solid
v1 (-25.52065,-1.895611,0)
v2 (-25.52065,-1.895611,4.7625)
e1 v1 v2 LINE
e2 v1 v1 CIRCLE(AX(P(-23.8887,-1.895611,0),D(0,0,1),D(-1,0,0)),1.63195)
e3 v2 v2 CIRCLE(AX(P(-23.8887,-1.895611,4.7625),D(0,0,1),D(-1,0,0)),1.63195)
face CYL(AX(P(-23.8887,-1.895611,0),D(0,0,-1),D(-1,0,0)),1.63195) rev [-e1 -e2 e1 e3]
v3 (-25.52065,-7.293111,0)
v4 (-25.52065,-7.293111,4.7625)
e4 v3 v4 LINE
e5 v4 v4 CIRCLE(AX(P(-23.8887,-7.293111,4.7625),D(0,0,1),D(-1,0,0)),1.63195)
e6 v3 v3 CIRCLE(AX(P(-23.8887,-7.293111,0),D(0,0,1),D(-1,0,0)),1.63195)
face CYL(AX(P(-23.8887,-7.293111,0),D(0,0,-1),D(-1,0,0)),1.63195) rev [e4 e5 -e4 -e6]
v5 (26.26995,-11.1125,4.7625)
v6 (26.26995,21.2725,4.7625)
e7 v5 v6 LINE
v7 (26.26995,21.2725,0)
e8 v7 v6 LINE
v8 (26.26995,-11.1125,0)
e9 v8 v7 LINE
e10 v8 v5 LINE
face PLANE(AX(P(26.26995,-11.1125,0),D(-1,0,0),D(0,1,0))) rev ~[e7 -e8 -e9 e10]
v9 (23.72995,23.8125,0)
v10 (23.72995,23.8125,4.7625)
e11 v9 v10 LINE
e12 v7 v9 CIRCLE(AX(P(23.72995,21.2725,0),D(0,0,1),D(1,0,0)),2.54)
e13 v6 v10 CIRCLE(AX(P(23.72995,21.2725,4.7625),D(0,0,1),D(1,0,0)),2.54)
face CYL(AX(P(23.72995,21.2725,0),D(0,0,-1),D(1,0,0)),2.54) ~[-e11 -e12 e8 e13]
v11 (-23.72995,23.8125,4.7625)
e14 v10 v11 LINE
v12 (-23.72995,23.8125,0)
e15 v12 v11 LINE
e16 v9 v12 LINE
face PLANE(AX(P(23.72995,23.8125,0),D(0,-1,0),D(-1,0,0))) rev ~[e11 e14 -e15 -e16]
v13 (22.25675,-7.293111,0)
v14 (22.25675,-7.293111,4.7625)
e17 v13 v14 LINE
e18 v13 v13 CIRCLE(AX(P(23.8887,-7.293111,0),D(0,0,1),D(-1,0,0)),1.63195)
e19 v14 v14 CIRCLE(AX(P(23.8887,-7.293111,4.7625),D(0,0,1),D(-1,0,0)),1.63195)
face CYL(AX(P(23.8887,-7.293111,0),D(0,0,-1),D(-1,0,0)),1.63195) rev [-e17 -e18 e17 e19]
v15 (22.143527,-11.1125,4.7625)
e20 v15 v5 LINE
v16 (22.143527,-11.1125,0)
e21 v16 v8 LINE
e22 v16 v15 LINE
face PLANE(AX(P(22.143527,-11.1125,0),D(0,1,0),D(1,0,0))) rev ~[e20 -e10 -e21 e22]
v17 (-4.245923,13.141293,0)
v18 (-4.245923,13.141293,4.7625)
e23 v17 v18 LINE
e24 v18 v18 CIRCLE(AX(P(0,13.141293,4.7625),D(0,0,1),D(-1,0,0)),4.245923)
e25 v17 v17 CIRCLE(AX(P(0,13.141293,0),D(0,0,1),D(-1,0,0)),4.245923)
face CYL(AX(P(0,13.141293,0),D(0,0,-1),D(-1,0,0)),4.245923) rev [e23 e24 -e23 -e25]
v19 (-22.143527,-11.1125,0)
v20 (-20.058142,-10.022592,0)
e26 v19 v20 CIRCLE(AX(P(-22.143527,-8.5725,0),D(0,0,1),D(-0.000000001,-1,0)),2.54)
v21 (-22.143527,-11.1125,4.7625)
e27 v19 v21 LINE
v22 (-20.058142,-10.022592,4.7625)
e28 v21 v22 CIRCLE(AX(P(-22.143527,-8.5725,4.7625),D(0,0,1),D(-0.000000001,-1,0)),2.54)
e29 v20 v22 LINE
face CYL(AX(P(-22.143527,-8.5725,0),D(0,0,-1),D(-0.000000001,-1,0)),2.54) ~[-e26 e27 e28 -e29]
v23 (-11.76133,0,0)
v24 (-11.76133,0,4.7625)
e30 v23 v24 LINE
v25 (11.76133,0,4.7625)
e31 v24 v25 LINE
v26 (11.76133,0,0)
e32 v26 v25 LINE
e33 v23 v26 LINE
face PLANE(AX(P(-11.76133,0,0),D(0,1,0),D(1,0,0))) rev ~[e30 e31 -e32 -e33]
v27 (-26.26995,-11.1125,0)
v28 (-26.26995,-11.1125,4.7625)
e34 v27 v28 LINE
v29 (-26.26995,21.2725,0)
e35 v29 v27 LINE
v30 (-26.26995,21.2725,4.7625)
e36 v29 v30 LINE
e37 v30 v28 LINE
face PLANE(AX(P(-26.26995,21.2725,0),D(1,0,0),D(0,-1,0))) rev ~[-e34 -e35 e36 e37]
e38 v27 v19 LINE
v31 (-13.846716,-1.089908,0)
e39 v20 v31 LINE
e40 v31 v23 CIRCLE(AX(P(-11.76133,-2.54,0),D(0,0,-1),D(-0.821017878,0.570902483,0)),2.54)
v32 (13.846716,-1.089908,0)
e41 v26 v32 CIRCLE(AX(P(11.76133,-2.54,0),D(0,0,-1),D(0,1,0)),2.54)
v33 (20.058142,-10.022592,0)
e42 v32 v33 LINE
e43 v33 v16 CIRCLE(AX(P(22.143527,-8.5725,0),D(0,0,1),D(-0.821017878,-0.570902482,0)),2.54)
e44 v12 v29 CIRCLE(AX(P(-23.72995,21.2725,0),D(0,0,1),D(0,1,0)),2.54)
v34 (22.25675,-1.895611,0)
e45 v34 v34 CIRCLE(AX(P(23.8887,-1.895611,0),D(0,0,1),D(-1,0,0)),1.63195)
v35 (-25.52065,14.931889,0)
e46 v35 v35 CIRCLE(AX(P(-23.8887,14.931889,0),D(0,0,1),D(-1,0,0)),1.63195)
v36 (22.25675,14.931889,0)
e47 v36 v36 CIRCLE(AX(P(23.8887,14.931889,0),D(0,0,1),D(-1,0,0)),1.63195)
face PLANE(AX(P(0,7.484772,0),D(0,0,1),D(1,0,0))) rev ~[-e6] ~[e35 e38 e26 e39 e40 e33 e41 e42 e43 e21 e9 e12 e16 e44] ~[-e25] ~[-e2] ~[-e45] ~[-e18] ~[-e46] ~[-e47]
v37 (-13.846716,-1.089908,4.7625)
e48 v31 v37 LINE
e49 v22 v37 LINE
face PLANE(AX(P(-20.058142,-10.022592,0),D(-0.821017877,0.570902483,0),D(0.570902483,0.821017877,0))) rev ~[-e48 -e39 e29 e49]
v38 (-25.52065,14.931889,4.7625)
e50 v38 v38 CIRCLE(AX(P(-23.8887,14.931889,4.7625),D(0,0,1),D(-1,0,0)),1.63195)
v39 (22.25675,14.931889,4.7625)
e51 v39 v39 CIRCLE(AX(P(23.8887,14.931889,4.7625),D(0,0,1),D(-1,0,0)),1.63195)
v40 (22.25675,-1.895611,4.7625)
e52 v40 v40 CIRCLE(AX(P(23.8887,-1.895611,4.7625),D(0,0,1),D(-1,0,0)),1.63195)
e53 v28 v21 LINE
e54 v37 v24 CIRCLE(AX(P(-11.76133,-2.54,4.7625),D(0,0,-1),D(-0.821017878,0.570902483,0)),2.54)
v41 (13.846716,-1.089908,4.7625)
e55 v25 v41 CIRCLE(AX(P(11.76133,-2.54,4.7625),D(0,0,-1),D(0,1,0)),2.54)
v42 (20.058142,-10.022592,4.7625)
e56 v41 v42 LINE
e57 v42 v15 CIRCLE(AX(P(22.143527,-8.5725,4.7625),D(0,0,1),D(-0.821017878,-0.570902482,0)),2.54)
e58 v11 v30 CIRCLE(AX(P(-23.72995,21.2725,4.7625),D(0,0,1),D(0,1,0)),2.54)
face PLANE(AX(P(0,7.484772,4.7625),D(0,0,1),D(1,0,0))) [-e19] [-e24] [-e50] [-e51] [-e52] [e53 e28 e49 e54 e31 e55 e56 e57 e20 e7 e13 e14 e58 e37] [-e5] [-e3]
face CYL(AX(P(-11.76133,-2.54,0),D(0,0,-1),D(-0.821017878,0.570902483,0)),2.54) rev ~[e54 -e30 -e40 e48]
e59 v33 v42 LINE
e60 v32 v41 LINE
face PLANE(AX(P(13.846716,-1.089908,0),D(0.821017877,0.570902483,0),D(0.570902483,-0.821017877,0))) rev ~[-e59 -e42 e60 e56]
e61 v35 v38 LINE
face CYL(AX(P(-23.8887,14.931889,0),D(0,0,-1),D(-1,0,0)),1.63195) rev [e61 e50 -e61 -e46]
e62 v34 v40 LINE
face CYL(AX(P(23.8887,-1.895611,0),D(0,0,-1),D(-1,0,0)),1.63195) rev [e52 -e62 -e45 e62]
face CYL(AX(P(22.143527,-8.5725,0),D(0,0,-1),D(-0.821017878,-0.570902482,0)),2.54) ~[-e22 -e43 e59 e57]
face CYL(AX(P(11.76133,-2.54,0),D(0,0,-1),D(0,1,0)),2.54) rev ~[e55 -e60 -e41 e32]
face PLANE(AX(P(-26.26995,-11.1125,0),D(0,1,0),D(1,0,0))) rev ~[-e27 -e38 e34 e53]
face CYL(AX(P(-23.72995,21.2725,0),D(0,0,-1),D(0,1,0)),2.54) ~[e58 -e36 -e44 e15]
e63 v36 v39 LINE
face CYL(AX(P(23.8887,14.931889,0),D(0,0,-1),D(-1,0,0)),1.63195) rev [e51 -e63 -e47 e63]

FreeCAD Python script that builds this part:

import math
import FreeCAD as App
import Part
import Sketcher
from FreeCAD import Vector
Q = App.Units.Quantity

doc = App.newDocument("Part")
body = doc.addObject("PartDesign::Body", "Body")

# Sketch on XY plane
sketch1 = body.newObject("Sketcher::SketchObject", "Sketch")
sketch1.AttachmentSupport = (doc.getObject("XY_Plane"), [""])
sketch1.MapMode = "FlatFace"
sketch1.addGeometry(Part.LineSegment(Vector(-26.26995, -11.1125, 0), Vector(-22.143527, -11.1125, 0)), False)
sketch1.addGeometry(Part.ArcOfCircle(Part.Circle(Vector(-22.143527, -8.5725, 0), Vector(0, 0, 1), 2.54), math.radians(-90), math.radians(-34.813183)), False)
sketch1.addGeometry(Part.LineSegment(Vector(-20.058142, -10.022592, 0), Vector(-13.846716, -1.089908, 0)), False)
sketch1.addGeometry(Part.ArcOfCircle(Part.Circle(Vector(-11.76133, -2.54, 0), Vector(0, 0, 1), 2.54), math.radians(90), math.radians(145.186817)), False)
sketch1.addGeometry(Part.LineSegment(Vector(-11.76133, 0, 0), Vector(11.76133, 0, 0)), False)
sketch1.addGeometry(Part.ArcOfCircle(Part.Circle(Vector(11.76133, -2.54, 0), Vector(0, 0, 1), 2.54), math.radians(34.813183), math.radians(90)), False)
sketch1.addGeometry(Part.LineSegment(Vector(13.846716, -1.089908, 0), Vector(20.058142, -10.022592, 0)), False)
sketch1.addGeometry(Part.ArcOfCircle(Part.Circle(Vector(22.143527, -8.5725, 0), Vector(0, 0, 1), 2.54), math.radians(-145.186817), math.radians(-90)), False)
sketch1.addGeometry(Part.LineSegment(Vector(22.143527, -11.1125, 0), Vector(26.26995, -11.1125, 0)), False)
sketch1.addGeometry(Part.LineSegment(Vector(26.26995, -11.1125, 0), Vector(26.26995, 21.2725, 0)), False)
sketch1.addGeometry(Part.ArcOfCircle(Part.Circle(Vector(23.72995, 21.2725, 0), Vector(0, 0, 1), 2.54), math.radians(0), math.radians(90)), False)
sketch1.addGeometry(Part.LineSegment(Vector(23.72995, 23.8125, 0), Vector(-23.72995, 23.8125, 0)), False)
sketch1.addGeometry(Part.ArcOfCircle(Part.Circle(Vector(-23.72995, 21.2725, 0), Vector(0, 0, 1), 2.54), math.radians(90), math.radians(180)), False)
sketch1.addGeometry(Part.LineSegment(Vector(-26.26995, 21.2725, 0), Vector(-26.26995, -11.1125, 0)), False)
sketch1.addGeometry(Part.Circle(Vector(-23.8887, -7.293111, 0), Vector(0, 0, 1), 1.63195), False)
sketch1.addGeometry(Part.Circle(Vector(-23.8887, -1.895611, 0), Vector(0, 0, 1), 1.63195), False)
sketch1.addGeometry(Part.Circle(Vector(23.8887, -7.293111, 0), Vector(0, 0, 1), 1.63195), False)
sketch1.addGeometry(Part.Circle(Vector(23.8887, -1.895611, 0), Vector(0, 0, 1), 1.63195), False)
sketch1.addGeometry(Part.Circle(Vector(-23.8887, 14.931889, 0), Vector(0, 0, 1), 1.63195), False)
sketch1.addGeometry(Part.Circle(Vector(0, 13.141293, 0), Vector(0, 0, 1), 4.245923), False)
sketch1.addGeometry(Part.Circle(Vector(23.8887, 14.931889, 0), Vector(0, 0, 1), 1.63195), False)
sketch1.addConstraint(Sketcher.Constraint("Tangent", 0, 2, 1, 1))
sketch1.addConstraint(Sketcher.Constraint("Tangent", 1, 2, 2, 1))
sketch1.addConstraint(Sketcher.Constraint("Tangent", 2, 2, 3, 2))
sketch1.addConstraint(Sketcher.Constraint("Tangent", 3, 1, 4, 1))
sketch1.addConstraint(Sketcher.Constraint("Tangent", 4, 2, 5, 2))
sketch1.addConstraint(Sketcher.Constraint("Tangent", 5, 1, 6, 1))
sketch1.addConstraint(Sketcher.Constraint("Tangent", 6, 2, 7, 1))
sketch1.addConstraint(Sketcher.Constraint("Tangent", 7, 2, 8, 1))
sketch1.addConstraint(Sketcher.Constraint("Coincident", 8, 2, 9, 1))
sketch1.addConstraint(Sketcher.Constraint("Tangent", 9, 2, 10, 1))
sketch1.addConstraint(Sketcher.Constraint("Tangent", 10, 2, 11, 1))
sketch1.addConstraint(Sketcher.Constraint("Tangent", 11, 2, 12, 1))
sketch1.addConstraint(Sketcher.Constraint("Tangent", 12, 2, 13, 1))
sketch1.addConstraint(Sketcher.Constraint("Coincident", 13, 2, 0, 1))
sketch1.addConstraint(Sketcher.Constraint("Horizontal", 0))
sketch1.addConstraint(Sketcher.Constraint("Horizontal", 4))
sketch1.addConstraint(Sketcher.Constraint("Horizontal", 8))
sketch1.addConstraint(Sketcher.Constraint("Vertical", 9))
sketch1.addConstraint(Sketcher.Constraint("Horizontal", 11))
sketch1.addConstraint(Sketcher.Constraint("Vertical", 13))
sketch1.addConstraint(Sketcher.Constraint("Equal", 1, 3))
sketch1.addConstraint(Sketcher.Constraint("Equal", 3, 5))
sketch1.addConstraint(Sketcher.Constraint("Equal", 5, 7))
sketch1.addConstraint(Sketcher.Constraint("Equal", 7, 10))
sketch1.addConstraint(Sketcher.Constraint("Equal", 10, 12))
sketch1.addConstraint(Sketcher.Constraint("Equal", 14, 15))
sketch1.addConstraint(Sketcher.Constraint("Equal", 15, 16))
sketch1.addConstraint(Sketcher.Constraint("Equal", 16, 17))
sketch1.addConstraint(Sketcher.Constraint("Equal", 17, 18))
sketch1.addConstraint(Sketcher.Constraint("Equal", 18, 20))
sketch1.addConstraint(Sketcher.Constraint("Symmetric", 3, 1, 4, 2, -1, 1))
sketch1.addConstraint(Sketcher.Constraint("Symmetric", 1, 3, 7, 3, -2))
sketch1.addConstraint(Sketcher.Constraint("Symmetric", 14, 3, 16, 3, -2))
sketch1.addConstraint(Sketcher.Constraint("Symmetric", 15, 3, 17, 3, -2))
sketch1.addConstraint(Sketcher.Constraint("Symmetric", 18, 3, 20, 3, -2))
sketch1.addConstraint(Sketcher.Constraint("PointOnObject", 19, 3, -2))
sketch1.addConstraint(Sketcher.Constraint("Vertical", 14, 3, 15, 3))
sketch1.addConstraint(Sketcher.Constraint("Vertical", 15, 3, 18, 3))
sketch1.addConstraint(Sketcher.Constraint("Equal", 0, 8))
sketch1.addConstraint(Sketcher.Constraint("Radius", 1, Q("0.1 in")))
sketch1.addConstraint(Sketcher.Constraint("Diameter", 14, Q("0.1285 in")))
sketch1.addConstraint(Sketcher.Constraint("DistanceY", 9, 1, 9, 2, Q("1.275 in")))
sketch1.addConstraint(Sketcher.Constraint("DistanceX", 11, 2, 11, 1, Q("1.8685 in")))
sketch1.addConstraint(Sketcher.Constraint("DistanceY", 0, 2, -1, 1, Q("0.4375 in")))
sketch1.addConstraint(Sketcher.Constraint("DistanceY", 14, 3, 18, 3, Q("0.875 in")))
sketch1.addConstraint(Sketcher.Constraint("DistanceX", 16, 3, 8, 2, Q("0.09375 in")))
sketch1.addConstraint(Sketcher.Constraint("Diameter", 19, Q("8.491845 mm")))
sketch1.addConstraint(Sketcher.Constraint("DistanceY", 14, 3, 15, 3, Q("0.2125 in")))
sketch1.addConstraint(Sketcher.Constraint("DistanceX", 4, 1, 4, 2, Q("23.52266 mm")))
sketch1.addConstraint(Sketcher.Constraint("DistanceX", 0, 1, 0, 2, Q("4.126423 mm")))
sketch1.addConstraint(Sketcher.Constraint("DistanceY", 14, 3, -1, 1, Q("7.293111 mm")))
sketch1.addConstraint(Sketcher.Constraint("DistanceY", -1, 1, 19, 3, Q("13.141293 mm")))
pad1 = body.newObject("PartDesign::Pad", "Pad")
pad1.Profile = sketch1
pad1.Length = Q("0.1875 in")

doc.recompute()
